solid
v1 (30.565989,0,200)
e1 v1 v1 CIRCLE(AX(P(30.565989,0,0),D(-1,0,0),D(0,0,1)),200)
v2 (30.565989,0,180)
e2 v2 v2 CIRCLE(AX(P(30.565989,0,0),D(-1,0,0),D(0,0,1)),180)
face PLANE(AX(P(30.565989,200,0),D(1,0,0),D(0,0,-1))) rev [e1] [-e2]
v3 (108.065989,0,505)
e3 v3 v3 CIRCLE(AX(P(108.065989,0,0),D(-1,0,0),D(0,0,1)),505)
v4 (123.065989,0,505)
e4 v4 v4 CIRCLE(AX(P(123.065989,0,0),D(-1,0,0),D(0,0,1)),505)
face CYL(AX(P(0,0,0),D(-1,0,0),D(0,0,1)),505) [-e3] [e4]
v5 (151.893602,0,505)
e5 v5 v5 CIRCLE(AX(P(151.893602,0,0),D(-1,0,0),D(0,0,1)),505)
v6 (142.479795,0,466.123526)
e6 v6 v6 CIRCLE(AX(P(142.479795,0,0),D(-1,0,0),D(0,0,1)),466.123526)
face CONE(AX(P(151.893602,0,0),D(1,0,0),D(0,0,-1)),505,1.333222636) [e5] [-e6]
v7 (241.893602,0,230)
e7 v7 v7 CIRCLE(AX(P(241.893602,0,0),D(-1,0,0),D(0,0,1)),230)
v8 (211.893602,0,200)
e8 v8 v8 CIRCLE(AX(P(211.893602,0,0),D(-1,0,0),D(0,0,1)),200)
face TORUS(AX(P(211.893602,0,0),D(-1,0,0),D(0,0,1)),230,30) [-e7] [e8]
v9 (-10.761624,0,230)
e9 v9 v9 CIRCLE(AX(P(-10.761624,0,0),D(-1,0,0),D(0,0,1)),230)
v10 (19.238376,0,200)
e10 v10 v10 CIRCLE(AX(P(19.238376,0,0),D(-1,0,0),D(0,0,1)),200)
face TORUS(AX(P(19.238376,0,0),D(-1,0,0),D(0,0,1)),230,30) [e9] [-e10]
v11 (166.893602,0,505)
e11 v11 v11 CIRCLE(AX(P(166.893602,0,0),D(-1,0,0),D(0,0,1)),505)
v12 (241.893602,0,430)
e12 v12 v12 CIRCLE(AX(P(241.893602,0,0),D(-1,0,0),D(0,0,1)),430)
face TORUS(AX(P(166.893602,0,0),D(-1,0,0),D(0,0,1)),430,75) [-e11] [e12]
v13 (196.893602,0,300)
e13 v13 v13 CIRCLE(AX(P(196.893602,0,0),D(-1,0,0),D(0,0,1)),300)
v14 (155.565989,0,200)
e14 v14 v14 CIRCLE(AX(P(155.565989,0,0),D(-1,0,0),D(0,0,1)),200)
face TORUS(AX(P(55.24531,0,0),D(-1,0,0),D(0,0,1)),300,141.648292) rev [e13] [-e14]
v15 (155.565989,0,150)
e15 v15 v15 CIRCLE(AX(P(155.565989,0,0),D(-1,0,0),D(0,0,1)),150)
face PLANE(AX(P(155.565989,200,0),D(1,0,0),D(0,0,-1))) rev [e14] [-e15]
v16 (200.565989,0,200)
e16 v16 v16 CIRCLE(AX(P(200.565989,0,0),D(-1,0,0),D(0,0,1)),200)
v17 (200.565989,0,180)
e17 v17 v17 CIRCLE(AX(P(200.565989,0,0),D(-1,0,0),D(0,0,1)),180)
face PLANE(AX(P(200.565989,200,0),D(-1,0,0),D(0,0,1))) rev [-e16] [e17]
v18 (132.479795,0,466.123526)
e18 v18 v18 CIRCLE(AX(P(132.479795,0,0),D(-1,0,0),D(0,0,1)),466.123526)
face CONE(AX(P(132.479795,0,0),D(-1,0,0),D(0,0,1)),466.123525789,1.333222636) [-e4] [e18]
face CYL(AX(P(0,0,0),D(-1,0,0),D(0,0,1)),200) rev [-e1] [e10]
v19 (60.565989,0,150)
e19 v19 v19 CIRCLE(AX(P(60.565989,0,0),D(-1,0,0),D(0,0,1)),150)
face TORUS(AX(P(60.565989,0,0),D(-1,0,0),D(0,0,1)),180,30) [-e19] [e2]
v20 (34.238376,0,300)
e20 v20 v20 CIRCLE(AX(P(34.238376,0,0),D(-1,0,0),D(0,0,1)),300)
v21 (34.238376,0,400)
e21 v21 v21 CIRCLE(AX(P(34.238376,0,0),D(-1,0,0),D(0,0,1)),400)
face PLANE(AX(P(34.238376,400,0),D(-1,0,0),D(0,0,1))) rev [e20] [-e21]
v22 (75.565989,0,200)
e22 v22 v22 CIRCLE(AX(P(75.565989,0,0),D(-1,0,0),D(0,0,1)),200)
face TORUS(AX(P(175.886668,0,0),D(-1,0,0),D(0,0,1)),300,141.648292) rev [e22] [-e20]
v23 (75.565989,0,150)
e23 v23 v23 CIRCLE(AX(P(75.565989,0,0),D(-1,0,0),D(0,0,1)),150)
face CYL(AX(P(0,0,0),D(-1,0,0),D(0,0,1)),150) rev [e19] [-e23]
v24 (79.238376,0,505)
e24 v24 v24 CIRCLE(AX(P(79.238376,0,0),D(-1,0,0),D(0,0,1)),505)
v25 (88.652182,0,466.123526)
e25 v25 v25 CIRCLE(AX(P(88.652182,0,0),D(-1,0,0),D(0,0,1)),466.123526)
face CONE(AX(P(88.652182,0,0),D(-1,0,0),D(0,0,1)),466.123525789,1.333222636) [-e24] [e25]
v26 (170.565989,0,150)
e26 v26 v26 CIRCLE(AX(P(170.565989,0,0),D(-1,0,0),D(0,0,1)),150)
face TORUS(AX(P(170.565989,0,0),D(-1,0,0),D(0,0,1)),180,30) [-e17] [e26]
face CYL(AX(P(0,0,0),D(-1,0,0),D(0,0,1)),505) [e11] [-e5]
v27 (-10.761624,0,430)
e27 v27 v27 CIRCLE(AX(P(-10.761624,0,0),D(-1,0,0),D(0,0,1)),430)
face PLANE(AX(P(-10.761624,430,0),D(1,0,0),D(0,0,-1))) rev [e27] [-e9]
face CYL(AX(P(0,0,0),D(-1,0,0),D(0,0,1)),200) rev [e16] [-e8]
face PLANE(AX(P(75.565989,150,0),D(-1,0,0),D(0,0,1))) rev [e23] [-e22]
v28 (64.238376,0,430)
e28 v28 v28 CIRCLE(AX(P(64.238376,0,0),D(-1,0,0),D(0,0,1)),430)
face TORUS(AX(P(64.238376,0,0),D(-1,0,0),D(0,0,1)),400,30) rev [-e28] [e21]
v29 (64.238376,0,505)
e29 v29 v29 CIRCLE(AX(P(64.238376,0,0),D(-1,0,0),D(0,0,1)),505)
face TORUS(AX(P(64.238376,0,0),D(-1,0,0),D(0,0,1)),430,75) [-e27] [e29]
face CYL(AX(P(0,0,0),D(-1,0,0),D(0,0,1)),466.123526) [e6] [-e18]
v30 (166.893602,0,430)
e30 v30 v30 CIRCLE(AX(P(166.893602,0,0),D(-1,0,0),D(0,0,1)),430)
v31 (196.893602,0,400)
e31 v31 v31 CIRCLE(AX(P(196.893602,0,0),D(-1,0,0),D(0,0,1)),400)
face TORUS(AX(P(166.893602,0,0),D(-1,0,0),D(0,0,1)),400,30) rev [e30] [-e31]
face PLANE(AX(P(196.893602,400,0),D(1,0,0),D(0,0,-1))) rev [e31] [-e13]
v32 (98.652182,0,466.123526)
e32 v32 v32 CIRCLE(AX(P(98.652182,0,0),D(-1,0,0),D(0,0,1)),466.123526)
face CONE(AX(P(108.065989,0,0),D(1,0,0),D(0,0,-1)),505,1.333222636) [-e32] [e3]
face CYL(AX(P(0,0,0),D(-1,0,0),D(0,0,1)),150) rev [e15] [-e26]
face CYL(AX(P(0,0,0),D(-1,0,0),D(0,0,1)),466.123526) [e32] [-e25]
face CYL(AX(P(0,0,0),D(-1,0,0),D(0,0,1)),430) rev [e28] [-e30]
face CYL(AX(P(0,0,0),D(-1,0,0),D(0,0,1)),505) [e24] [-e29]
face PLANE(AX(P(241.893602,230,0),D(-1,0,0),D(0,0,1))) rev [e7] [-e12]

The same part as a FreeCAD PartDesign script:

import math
import FreeCAD as App
import Part
import Sketcher

V = App.Vector
Q = App.Units.Quantity

doc = App.newDocument("Part")
body = doc.addObject("PartDesign::Body", "Body")

# Sketch on XY plane
sketch1 = body.newObject("Sketcher::SketchObject", "Sketch")
sketch1.AttachmentSupport = (doc.getObject("XY_Plane"), [""])
sketch1.MapMode = "FlatFace"
sketch1.addGeometry([
    Part.ArcOfCircle(Part.Circle(V(167, 430, 0), V(0, 0, 1), 75), math.radians(0), math.radians(90)),  # 0
    Part.LineSegment(V(167, 505, 0), V(152, 505, 0)),  # 1
    Part.LineSegment(V(152, 505, 0), V(142, 466, 0)),  # 2
    Part.LineSegment(V(142, 466, 0), V(132, 466, 0)),  # 3
    Part.LineSegment(V(132, 466, 0), V(123, 505, 0)),  # 4
    Part.LineSegment(V(123, 505, 0), V(108, 505, 0)),  # 5
    Part.LineSegment(V(108, 505, 0), V(99, 466, 0)),  # 6
    Part.LineSegment(V(99, 466, 0), V(89, 466, 0)),  # 7
    Part.LineSegment(V(89, 466, 0), V(79, 505, 0)),  # 8
    Part.LineSegment(V(79, 505, 0), V(64, 505, 0)),  # 9
    Part.ArcOfCircle(Part.Circle(V(64, 430, 0), V(0, 0, 1), 75), math.radians(90), math.radians(180)),  # 10
    Part.LineSegment(V(-11, 430, 0), V(-11, 230, 0)),  # 11
    Part.ArcOfCircle(Part.Circle(V(19, 230, 0), V(0, 0, 1), 30), math.radians(180), math.radians(270)),  # 12
    Part.LineSegment(V(19, 200, 0), V(31, 200, 0)),  # 13
    Part.LineSegment(V(31, 200, 0), V(31, 180, 0)),  # 14
    Part.ArcOfCircle(Part.Circle(V(61, 180, 0), V(0, 0, 1), 30), math.radians(180), math.radians(270)),  # 15
    Part.LineSegment(V(61, 150, 0), V(76, 150, 0)),  # 16
    Part.LineSegment(V(76, 150, 0), V(76, 200, 0)),  # 17
    Part.ArcOfCircle(Part.Circle(V(176, 300, 0), V(0, 0, 1), 142), math.radians(180), math.radians(225)),  # 18
    Part.LineSegment(V(34, 300, 0), V(34, 400, 0)),  # 19
    Part.ArcOfCircle(Part.Circle(V(64, 400, 0), V(0, 0, 1), 30), math.radians(90), math.radians(180)),  # 20
    Part.LineSegment(V(64, 430, 0), V(167, 430, 0)),  # 21
    Part.ArcOfCircle(Part.Circle(V(167, 400, 0), V(0, 0, 1), 30), math.radians(0), math.radians(90)),  # 22
    Part.LineSegment(V(197, 400, 0), V(197, 300, 0)),  # 23
    Part.ArcOfCircle(Part.Circle(V(55, 300, 0), V(0, 0, 1), 142), math.radians(-45), math.radians(0)),  # 24
    Part.LineSegment(V(156, 200, 0), V(156, 150, 0)),  # 25
    Part.LineSegment(V(156, 150, 0), V(171, 150, 0)),  # 26
    Part.ArcOfCircle(Part.Circle(V(171, 180, 0), V(0, 0, 1), 30), math.radians(-90), math.radians(0)),  # 27
    Part.LineSegment(V(201, 180, 0), V(201, 200, 0)),  # 28
    Part.LineSegment(V(201, 200, 0), V(212, 200, 0)),  # 29
    Part.ArcOfCircle(Part.Circle(V(212, 230, 0), V(0, 0, 1), 30), math.radians(-90), math.radians(0)),  # 30
    Part.LineSegment(V(242, 230, 0), V(242, 430, 0)),  # 31
], False)
sketch1.addConstraint([
    Sketcher.Constraint("Tangent", 0, 2, 1, 1),
    Sketcher.Constraint("Coincident", 1, 2, 2, 1),
    Sketcher.Constraint("Coincident", 2, 2, 3, 1),
    Sketcher.Constraint("Coincident", 3, 2, 4, 1),
    Sketcher.Constraint("Coincident", 4, 2, 5, 1),
    Sketcher.Constraint("Coincident", 5, 2, 6, 1),
    Sketcher.Constraint("Coincident", 6, 2, 7, 1),
    Sketcher.Constraint("Coincident", 7, 2, 8, 1),
    Sketcher.Constraint("Coincident", 8, 2, 9, 1),
    Sketcher.Constraint("Tangent", 9, 2, 10, 1),
    Sketcher.Constraint("Tangent", 10, 2, 11, 1),
    Sketcher.Constraint("Tangent", 11, 2, 12, 1),
    Sketcher.Constraint("Tangent", 12, 2, 13, 1),
    Sketcher.Constraint("Coincident", 13, 2, 14, 1),
    Sketcher.Constraint("Tangent", 14, 2, 15, 1),
    Sketcher.Constraint("Tangent", 15, 2, 16, 1),
    Sketcher.Constraint("Coincident", 16, 2, 17, 1),
    Sketcher.Constraint("Coincident", 17, 2, 18, 2),
    Sketcher.Constraint("Tangent", 18, 1, 19, 1),
    Sketcher.Constraint("Tangent", 19, 2, 20, 2),
    Sketcher.Constraint("Tangent", 20, 1, 21, 1),
    Sketcher.Constraint("Tangent", 21, 2, 22, 2),
    Sketcher.Constraint("Tangent", 22, 1, 23, 1),
    Sketcher.Constraint("Tangent", 23, 2, 24, 2),
    Sketcher.Constraint("Coincident", 24, 1, 25, 1),
    Sketcher.Constraint("Coincident", 25, 2, 26, 1),
    Sketcher.Constraint("Tangent", 26, 2, 27, 1),
    Sketcher.Constraint("Tangent", 27, 2, 28, 1),
    Sketcher.Constraint("Coincident", 28, 2, 29, 1),
    Sketcher.Constraint("Tangent", 29, 2, 30, 1),
    Sketcher.Constraint("Tangent", 30, 2, 31, 1),
    Sketcher.Constraint("Tangent", 31, 2, 0, 1),
    Sketcher.Constraint("Horizontal", 1),
    Sketcher.Constraint("Horizontal", 3),
    Sketcher.Constraint("Horizontal", 5),
    Sketcher.Constraint("Horizontal", 7),
    Sketcher.Constraint("Horizontal", 9),
    Sketcher.Constraint("Vertical", 11),
    Sketcher.Constraint("Horizontal", 13),
    Sketcher.Constraint("Vertical", 14),
    Sketcher.Constraint("Horizontal", 16),
    Sketcher.Constraint("Vertical", 17),
    Sketcher.Constraint("Vertical", 19),
    Sketcher.Constraint("Horizontal", 21),
    Sketcher.Constraint("Vertical", 23),
    Sketcher.Constraint("Vertical", 25),
    Sketcher.Constraint("Horizontal", 26),
    Sketcher.Constraint("Vertical", 28),
    Sketcher.Constraint("Horizontal", 29),
    Sketcher.Constraint("Vertical", 31),
    Sketcher.Constraint("Coincident", 20, 1, 10, 3),
    Sketcher.Constraint("Coincident", 21, 2, 0, 3),
    Sketcher.Constraint("Equal", 0, 10),
    Sketcher.Constraint("Equal", 12, 15),
    Sketcher.Constraint("Equal", 15, 20),
    Sketcher.Constraint("Equal", 20, 22),
    Sketcher.Constraint("Equal", 18, 24),
    Sketcher.Constraint("Equal", 22, 27),
    Sketcher.Constraint("Equal", 27, 30),
    Sketcher.Constraint("Parallel", 2, 6),
    Sketcher.Constraint("Parallel", 4, 8),
    Sketcher.Constraint("Horizontal", 18, 3, 24, 3),
    Sketcher.Constraint("Horizontal", 15, 3, 27, 3),
    Sketcher.Constraint("Horizontal", 12, 3, 30, 3),
    Sketcher.Constraint("Horizontal", 1, 2, 4, 2),
    Sketcher.Constraint("Horizontal", 3, 2, 6, 2),
    Sketcher.Constraint("Horizontal", 13, 2, 17, 2),
    Sketcher.Constraint("Horizontal", 17, 2, 24, 1),
    Sketcher.Constraint("Equal", 1, 5),
    Sketcher.Constraint("Equal", 3, 7),
    Sketcher.Constraint("Equal", 5, 9),
    Sketcher.Constraint("Equal", 9, 16),
    Sketcher.Constraint("Equal", 16, 26),
    Sketcher.Constraint("Equal", 2, 4),
    Sketcher.Constraint("Radius", 0, Q("75 mm")),
    Sketcher.Constraint("Radius", 12, Q("30 mm")),
    Sketcher.Constraint("DistanceX", 1, 2, 1, 1, Q("15 mm")),
    Sketcher.Constraint("DistanceX", 3, 2, 3, 1, Q("10 mm")),
    Sketcher.Constraint("DistanceY", 11, 2, 11, 1, Q("200 mm")),
    Sketcher.Constraint("DistanceY", 14, 2, 14, 1, Q("20 mm")),
    Sketcher.Constraint("DistanceY", 19, 1, 19, 2, Q("100 mm")),
    Sketcher.Constraint("Distance", 2, Q("40 mm")),
    Sketcher.Constraint("DistanceY", -1, 1, 0, 3, Q("430 mm")),
    Sketcher.Constraint("DistanceX", 15, 3, 27, 3, Q("110 mm")),
    Sketcher.Constraint("Radius", 18, Q("141.648292 mm")),
    Sketcher.Constraint("DistanceX", -1, 1, 0, 3, Q("166.893602 mm")),
])
revolution = body.newObject("PartDesign::Revolution", "Revolution")
revolution.Profile = sketch1
revolution.ReferenceAxis = (sketch1, ["H_Axis"])
revolution.Angle = 360

doc.recompute()
